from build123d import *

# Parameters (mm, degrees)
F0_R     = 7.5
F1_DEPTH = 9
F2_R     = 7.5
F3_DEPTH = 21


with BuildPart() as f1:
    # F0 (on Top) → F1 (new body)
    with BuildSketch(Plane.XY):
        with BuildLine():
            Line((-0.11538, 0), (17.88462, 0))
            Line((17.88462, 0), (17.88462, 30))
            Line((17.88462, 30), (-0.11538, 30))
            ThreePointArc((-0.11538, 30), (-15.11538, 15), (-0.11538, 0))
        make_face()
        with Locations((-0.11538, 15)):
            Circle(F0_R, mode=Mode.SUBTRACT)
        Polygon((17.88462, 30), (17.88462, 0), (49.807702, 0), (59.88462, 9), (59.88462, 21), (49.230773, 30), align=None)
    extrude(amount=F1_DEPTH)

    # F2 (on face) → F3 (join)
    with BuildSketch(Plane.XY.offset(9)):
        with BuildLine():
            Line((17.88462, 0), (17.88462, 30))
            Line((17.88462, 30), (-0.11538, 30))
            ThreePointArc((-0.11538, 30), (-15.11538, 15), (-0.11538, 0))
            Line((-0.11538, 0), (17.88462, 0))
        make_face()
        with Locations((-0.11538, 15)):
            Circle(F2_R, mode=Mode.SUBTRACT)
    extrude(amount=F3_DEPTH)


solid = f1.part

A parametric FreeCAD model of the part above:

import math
import FreeCAD as App
import Part
import Sketcher
Q = App.Units.Quantity

doc = App.newDocument("Part")
body = doc.addObject("PartDesign::Body", "Body")

# Sketch on XY plane
sketch1 = body.newObject("Sketcher::SketchObject", "Sketch")
sketch1.AttachmentSupport = (doc.getObject("XY_Plane"), [""])
sketch1.MapMode = "FlatFace"
sketch1.addGeometry([
    Part.LineSegment(App.Vector(0, 0, 0), App.Vector(50, 0, 0)),  # 0
    Part.LineSegment(App.Vector(50, 0, 0), App.Vector(60, 9, 0)),  # 1
    Part.LineSegment(App.Vector(60, 9, 0), App.Vector(60, 21, 0)),  # 2
    Part.LineSegment(App.Vector(60, 21, 0), App.Vector(49, 30, 0)),  # 3
    Part.LineSegment(App.Vector(49, 30, 0), App.Vector(0, 30, 0)),  # 4
    Part.ArcOfCircle(Part.Circle(App.Vector(0, 15, 0), App.Vector(0, 0, 1), 15), math.radians(90), math.radians(270)),  # 5
    Part.Circle(App.Vector(0, 15, 0), App.Vector(0, 0, 1), 8),  # 6
], False)
sketch1.addConstraint([
    Sketcher.Constraint("Coincident", 0, 2, 1, 1),
    Sketcher.Constraint("Coincident", 1, 2, 2, 1),
    Sketcher.Constraint("Coincident", 2, 2, 3, 1),
    Sketcher.Constraint("Coincident", 3, 2, 4, 1),
    Sketcher.Constraint("Tangent", 4, 2, 5, 1),
    Sketcher.Constraint("Tangent", 5, 2, 0, 1),
    Sketcher.Constraint("Horizontal", 0),
    Sketcher.Constraint("Vertical", 2),
    Sketcher.Constraint("Horizontal", 4),
    Sketcher.Constraint("Coincident", 6, 3, 5, 3),
    Sketcher.Constraint("PointOnObject", 0, 2, -1),
    Sketcher.Constraint("Diameter", 6, Q("15 mm")),
    Sketcher.Constraint("Radius", 5, Q("15 mm")),
    Sketcher.Constraint("DistanceY", 2, 1, 2, 2, Q("12 mm")),
    Sketcher.Constraint("DistanceY", -1, 1, 1, 2, Q("9 mm")),
    Sketcher.Constraint("DistanceX", 5, 3, 1, 2, Q("60 mm")),
    Sketcher.Constraint("DistanceX", 0, 1, 0, 2, Q("49.923082 mm")),
    Sketcher.Constraint("DistanceX", 4, 2, 4, 1, Q("49.346153 mm")),
    Sketcher.Constraint("DistanceX", 5, 3, -1, 1, Q("0.11538 mm")),
])
pad1 = body.newObject("PartDesign::Pad", "Pad")
pad1.Profile = sketch1
pad1.Length = 9

# Sketch on XY plane
sketch2 = body.newObject("Sketcher::SketchObject", "Sketch001")
sketch2.AttachmentSupport = (doc.getObject("XY_Plane"), [""])
sketch2.MapMode = "FlatFace"
sketch2.AttachmentOffset = App.Placement(App.Vector(0, 0, 9), App.Rotation())
sketch2.addGeometry([
    Part.LineSegment(App.Vector(18, 0, 0), App.Vector(18, 30, 0)),  # 0
    Part.LineSegment(App.Vector(18, 30, 0), App.Vector(0, 30, 0)),  # 1
    Part.ArcOfCircle(Part.Circle(App.Vector(0, 15, 0), App.Vector(0, 0, 1), 15), math.radians(90), math.radians(270)),  # 2
    Part.LineSegment(App.Vector(0, 0, 0), App.Vector(18, 0, 0)),  # 3
    Part.Circle(App.Vector(0, 15, 0), App.Vector(0, 0, 1), 8),  # 4
], False)
sketch2.addConstraint([
    Sketcher.Constraint("Coincident", 0, 2, 1, 1),
    Sketcher.Constraint("Tangent", 1, 2, 2, 1),
    Sketcher.Constraint("Tangent", 2, 2, 3, 1),
    Sketcher.Constraint("Coincident", 3, 2, 0, 1),
    Sketcher.Constraint("Vertical", 0),
    Sketcher.Constraint("Horizontal", 1),
    Sketcher.Constraint("Horizontal", 3),
    Sketcher.Constraint("Coincident", 4, 3, 2, 3),
    Sketcher.Constraint("PointOnObject", 2, 2, -1),
    Sketcher.Constraint("Diameter", 4, Q("15 mm")),
    Sketcher.Constraint("Radius", 2, Q("15 mm")),
    Sketcher.Constraint("DistanceX", 1, 2, 1, 1, Q("18 mm")),
    Sketcher.Constraint("DistanceX", 2, 3, -1, 1, Q("0.11538 mm")),
])
pad2 = body.newObject("PartDesign::Pad", "Pad001")
pad2.Profile = sketch2
pad2.Length = 21

doc.recompute()
